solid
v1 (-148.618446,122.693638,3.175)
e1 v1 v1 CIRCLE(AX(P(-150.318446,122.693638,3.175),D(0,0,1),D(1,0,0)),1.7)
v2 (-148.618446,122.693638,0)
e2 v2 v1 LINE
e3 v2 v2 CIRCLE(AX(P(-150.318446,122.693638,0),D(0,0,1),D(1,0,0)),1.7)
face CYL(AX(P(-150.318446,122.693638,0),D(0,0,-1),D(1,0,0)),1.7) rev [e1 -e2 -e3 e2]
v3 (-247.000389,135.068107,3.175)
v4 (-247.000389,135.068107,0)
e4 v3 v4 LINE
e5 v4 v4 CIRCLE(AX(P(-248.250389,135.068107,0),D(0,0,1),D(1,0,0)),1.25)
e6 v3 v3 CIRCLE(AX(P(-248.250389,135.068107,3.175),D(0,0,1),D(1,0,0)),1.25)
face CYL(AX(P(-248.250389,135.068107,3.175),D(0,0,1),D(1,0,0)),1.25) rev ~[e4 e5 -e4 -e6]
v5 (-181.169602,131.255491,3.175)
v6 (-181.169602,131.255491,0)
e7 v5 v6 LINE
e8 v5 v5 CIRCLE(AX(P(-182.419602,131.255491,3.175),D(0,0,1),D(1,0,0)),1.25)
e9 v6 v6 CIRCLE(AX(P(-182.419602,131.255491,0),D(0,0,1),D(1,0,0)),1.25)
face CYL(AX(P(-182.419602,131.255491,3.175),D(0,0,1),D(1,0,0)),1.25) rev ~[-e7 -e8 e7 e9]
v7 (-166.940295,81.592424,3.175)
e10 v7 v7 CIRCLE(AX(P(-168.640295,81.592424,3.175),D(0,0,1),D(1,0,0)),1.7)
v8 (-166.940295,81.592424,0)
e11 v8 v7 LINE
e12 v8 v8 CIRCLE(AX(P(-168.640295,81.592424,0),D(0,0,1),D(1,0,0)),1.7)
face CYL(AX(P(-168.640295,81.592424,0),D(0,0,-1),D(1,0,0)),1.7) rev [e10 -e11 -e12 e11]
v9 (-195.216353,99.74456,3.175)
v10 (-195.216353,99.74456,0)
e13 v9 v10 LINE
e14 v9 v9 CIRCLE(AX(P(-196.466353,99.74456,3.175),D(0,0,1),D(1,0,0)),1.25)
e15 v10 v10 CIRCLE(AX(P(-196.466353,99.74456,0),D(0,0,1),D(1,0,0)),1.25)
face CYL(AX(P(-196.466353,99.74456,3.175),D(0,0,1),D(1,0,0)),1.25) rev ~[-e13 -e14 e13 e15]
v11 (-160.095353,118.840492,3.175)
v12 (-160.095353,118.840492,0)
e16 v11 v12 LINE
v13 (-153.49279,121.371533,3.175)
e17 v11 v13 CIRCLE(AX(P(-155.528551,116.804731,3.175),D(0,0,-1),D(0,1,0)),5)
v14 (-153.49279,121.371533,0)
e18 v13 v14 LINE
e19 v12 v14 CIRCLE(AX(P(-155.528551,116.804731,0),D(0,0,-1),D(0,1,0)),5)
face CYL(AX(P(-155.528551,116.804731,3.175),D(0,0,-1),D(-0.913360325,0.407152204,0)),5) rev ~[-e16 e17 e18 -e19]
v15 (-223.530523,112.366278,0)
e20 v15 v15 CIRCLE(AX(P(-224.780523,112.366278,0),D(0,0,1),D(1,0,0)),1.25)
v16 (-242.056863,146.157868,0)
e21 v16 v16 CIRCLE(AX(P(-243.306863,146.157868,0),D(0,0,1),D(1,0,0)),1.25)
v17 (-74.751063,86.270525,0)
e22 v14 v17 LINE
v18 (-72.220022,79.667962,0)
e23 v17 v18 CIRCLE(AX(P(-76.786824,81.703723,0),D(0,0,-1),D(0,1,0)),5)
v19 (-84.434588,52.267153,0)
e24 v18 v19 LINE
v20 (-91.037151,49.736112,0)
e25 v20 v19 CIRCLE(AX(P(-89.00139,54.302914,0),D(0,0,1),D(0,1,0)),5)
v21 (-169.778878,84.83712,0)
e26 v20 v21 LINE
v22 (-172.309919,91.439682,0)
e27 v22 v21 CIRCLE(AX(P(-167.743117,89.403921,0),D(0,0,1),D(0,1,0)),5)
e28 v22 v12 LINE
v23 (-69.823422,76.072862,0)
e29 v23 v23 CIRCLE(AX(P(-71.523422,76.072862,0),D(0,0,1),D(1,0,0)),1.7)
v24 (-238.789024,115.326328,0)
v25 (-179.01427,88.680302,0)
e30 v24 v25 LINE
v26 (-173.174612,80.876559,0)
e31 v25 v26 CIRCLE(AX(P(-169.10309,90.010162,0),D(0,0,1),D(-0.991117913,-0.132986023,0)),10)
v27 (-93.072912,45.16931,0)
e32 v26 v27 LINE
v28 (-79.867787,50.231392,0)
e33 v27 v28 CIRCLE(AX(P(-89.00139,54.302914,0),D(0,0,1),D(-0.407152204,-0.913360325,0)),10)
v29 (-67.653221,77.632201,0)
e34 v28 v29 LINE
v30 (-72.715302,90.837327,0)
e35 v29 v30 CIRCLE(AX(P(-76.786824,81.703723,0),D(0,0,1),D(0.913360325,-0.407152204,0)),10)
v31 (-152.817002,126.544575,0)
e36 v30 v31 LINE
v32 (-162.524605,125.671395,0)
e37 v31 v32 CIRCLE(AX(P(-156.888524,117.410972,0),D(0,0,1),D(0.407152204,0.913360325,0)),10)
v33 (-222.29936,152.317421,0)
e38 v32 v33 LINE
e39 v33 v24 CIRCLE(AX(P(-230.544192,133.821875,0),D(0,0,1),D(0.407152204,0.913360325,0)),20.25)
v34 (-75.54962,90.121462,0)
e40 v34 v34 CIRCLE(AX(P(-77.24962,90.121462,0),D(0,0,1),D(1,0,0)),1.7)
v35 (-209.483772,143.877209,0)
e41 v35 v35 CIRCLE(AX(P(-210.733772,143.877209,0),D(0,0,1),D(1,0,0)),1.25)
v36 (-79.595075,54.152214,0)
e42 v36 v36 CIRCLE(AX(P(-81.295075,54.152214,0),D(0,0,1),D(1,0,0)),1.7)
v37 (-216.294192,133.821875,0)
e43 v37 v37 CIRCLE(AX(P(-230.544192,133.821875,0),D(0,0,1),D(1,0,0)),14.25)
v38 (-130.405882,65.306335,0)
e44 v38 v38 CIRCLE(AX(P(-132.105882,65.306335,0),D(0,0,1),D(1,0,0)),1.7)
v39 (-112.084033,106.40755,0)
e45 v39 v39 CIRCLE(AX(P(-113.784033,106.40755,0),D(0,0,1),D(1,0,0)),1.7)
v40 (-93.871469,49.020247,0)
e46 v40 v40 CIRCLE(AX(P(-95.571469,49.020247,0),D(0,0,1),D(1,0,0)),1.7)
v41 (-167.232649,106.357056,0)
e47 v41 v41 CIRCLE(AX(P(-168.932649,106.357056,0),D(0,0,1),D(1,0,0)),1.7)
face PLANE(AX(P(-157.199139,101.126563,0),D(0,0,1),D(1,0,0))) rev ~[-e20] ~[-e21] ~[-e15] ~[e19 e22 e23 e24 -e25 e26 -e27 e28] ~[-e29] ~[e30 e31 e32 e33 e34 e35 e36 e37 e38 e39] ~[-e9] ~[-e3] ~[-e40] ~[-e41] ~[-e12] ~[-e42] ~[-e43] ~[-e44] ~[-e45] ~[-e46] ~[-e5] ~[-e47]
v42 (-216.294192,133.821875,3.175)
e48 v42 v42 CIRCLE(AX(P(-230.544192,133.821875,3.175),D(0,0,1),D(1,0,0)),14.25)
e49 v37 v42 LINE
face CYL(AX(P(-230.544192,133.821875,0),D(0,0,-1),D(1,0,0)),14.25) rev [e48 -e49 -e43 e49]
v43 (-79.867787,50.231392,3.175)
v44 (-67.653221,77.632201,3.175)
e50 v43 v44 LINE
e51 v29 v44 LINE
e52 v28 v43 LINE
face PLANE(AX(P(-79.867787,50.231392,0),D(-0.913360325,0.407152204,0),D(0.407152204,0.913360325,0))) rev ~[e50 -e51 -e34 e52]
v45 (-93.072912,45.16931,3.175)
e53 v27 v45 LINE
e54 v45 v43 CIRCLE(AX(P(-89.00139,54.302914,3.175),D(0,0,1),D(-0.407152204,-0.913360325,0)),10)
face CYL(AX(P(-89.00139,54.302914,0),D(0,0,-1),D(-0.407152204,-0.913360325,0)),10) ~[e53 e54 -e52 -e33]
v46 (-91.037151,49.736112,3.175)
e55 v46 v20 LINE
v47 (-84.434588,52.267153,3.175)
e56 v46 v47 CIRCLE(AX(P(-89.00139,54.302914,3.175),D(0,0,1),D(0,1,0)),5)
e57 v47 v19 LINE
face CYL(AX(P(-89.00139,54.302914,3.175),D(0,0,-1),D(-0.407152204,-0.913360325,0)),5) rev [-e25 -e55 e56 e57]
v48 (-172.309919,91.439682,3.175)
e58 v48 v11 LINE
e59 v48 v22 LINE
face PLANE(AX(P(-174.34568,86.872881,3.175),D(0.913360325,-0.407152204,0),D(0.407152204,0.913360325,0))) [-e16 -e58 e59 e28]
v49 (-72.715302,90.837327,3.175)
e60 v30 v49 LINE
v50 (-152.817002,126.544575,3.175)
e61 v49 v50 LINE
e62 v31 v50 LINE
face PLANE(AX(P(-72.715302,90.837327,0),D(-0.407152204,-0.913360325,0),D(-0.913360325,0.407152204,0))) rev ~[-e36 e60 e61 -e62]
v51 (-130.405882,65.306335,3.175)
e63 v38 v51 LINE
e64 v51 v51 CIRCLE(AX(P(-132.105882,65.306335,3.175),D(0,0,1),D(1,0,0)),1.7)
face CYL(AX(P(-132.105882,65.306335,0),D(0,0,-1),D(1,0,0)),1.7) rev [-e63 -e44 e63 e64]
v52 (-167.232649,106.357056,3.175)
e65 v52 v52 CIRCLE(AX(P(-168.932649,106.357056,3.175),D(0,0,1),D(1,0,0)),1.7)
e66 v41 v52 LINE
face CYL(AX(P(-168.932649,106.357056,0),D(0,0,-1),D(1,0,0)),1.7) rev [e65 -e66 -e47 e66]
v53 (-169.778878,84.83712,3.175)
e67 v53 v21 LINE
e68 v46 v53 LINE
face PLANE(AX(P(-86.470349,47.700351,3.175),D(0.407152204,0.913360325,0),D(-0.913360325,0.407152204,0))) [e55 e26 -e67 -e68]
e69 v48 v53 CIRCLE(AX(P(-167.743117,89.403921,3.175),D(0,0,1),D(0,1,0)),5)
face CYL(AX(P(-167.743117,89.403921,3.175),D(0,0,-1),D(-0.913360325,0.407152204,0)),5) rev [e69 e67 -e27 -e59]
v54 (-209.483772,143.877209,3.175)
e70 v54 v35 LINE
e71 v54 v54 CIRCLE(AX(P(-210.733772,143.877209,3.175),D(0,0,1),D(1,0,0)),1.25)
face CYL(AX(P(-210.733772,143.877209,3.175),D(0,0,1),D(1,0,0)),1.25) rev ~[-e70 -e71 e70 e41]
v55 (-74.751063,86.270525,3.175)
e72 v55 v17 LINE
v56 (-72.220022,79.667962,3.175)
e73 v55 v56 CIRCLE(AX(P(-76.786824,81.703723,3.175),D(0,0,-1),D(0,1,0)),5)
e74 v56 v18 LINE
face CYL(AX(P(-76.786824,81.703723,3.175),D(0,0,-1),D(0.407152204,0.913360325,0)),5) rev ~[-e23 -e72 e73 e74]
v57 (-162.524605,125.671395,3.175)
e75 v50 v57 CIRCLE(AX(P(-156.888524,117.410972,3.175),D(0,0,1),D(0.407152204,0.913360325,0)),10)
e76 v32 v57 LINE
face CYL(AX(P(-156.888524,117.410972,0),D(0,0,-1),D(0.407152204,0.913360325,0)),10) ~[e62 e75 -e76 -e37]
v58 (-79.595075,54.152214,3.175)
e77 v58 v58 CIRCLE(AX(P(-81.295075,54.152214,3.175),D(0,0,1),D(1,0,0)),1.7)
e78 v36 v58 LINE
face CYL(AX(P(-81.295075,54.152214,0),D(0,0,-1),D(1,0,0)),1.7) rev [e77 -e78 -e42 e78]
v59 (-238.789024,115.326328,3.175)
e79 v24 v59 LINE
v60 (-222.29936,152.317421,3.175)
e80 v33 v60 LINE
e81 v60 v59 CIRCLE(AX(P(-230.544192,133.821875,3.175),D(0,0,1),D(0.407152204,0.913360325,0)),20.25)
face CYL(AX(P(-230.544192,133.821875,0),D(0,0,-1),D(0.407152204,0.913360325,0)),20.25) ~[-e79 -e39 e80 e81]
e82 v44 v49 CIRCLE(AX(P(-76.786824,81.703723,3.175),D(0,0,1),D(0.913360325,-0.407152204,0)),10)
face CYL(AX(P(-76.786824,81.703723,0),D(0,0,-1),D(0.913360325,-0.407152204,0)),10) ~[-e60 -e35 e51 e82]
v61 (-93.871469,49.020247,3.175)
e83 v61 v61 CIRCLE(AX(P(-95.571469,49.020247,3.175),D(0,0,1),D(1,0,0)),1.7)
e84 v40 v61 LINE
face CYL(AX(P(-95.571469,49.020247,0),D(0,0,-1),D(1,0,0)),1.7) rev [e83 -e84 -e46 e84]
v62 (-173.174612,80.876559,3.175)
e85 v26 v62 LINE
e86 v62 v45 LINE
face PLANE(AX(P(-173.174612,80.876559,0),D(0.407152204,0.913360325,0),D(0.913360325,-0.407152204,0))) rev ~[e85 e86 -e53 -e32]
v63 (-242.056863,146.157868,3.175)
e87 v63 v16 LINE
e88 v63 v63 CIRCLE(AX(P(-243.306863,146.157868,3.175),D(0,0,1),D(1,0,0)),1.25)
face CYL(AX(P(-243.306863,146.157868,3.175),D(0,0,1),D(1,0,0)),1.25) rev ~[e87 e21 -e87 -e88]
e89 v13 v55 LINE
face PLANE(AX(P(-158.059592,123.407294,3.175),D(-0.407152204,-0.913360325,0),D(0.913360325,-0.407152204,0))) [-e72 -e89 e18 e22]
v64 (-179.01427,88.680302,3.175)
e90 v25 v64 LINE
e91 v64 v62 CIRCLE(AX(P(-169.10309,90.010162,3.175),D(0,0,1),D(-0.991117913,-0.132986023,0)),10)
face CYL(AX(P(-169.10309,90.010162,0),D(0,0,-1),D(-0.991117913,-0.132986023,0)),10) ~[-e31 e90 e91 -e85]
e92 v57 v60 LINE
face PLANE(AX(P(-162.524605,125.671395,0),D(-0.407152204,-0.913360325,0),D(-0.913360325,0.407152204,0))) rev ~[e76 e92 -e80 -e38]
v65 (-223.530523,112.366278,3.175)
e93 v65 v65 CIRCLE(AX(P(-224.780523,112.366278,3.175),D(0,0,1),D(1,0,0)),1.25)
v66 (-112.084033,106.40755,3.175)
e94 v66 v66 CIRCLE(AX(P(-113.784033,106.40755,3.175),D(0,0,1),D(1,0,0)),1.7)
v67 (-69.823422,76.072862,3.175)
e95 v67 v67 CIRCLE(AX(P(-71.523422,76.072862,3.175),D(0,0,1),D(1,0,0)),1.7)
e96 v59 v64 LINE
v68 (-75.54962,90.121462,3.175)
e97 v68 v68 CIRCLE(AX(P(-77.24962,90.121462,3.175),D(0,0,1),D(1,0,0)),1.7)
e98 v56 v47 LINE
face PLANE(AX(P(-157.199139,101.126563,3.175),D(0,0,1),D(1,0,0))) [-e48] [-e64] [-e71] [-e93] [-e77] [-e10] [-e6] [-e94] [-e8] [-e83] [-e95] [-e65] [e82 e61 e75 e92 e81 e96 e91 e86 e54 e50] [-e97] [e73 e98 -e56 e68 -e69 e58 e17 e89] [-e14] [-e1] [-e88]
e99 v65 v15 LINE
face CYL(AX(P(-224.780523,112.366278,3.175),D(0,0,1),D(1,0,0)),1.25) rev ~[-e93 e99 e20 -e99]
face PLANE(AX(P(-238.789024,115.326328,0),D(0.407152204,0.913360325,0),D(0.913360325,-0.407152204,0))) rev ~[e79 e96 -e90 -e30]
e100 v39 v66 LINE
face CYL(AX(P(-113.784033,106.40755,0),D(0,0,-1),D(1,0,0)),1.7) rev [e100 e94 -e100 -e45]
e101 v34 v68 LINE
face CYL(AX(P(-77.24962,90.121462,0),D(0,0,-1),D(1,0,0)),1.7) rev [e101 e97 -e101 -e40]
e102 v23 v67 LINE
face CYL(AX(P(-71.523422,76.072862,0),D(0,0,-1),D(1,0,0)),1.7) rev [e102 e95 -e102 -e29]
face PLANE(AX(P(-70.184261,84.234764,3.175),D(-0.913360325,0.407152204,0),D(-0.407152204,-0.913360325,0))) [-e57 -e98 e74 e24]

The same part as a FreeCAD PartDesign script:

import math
import FreeCAD as App
import Part
import Sketcher

V = App.Vector


def edges_at(feature, points):
    """Names of the edges that pass closest to the given points."""
    edges = feature.Shape.Edges
    near = lambda p: min(range(len(edges)), key=lambda i: edges[i].distToShape(Part.Vertex(*p))[0])
    return sorted({f"Edge{near(p) + 1}" for p in points})


def add_polygon(sketch, points):
    """Adds a closed chain of lines whose ends are joined by coincident constraints."""
    first, n = sketch.GeometryCount, len(points)
    for a, b in zip(points, points[1:] + points[:1]):
        sketch.addGeometry(Part.LineSegment(App.Vector(*a, 0), App.Vector(*b, 0)), False)
    for i in range(n):
        sketch.addConstraint(Sketcher.Constraint("Coincident", first + i, 2, first + (i + 1) % n, 1))

doc = App.newDocument("Part")
body = doc.addObject("PartDesign::Body", "Body")

sketch1 = body.newObject("Sketcher::SketchObject", "Sketch")
sketch1.AttachmentSupport = (doc.getObject("XY_Plane"), [""])
sketch1.MapMode = "FlatFace"
sketch1.addGeometry(Part.LineSegment(V(-72.7, 90.8, 0), V(-152.8, 126.5, 0)), False)
sketch1.addGeometry(Part.ArcOfCircle(Part.Circle(V(-156.9, 117.4, 0), V(0, 0, 1), 10), math.radians(66), math.radians(124)), False)
sketch1.addGeometry(Part.LineSegment(V(-162.5, 125.7, 0), V(-222.3, 152.3, 0)), False)
sketch1.addGeometry(Part.ArcOfCircle(Part.Circle(V(-230.5, 133.8, 0), V(0, 0, 1), 20.2), math.radians(66), math.radians(246)), False)
sketch1.addGeometry(Part.LineSegment(V(-238.8, 115.3, 0), V(-179, 88.7, 0)), False)
sketch1.addGeometry(Part.ArcOfCircle(Part.Circle(V(-169.1, 90, 0), V(0, 0, 1), 10), math.radians(-172), math.radians(-114)), False)
sketch1.addGeometry(Part.LineSegment(V(-173.2, 80.9, 0), V(-93.1, 45.2, 0)), False)
sketch1.addGeometry(Part.ArcOfCircle(Part.Circle(V(-89, 54.3, 0), V(0, 0, 1), 10), math.radians(-114), math.radians(-24)), False)
sketch1.addGeometry(Part.LineSegment(V(-79.9, 50.2, 0), V(-67.7, 77.6, 0)), False)
sketch1.addGeometry(Part.ArcOfCircle(Part.Circle(V(-76.8, 81.7, 0), V(0, 0, 1), 10), math.radians(-24), math.radians(66)), False)
sketch1.addGeometry(Part.Circle(V(-168.6, 81.6, 0), V(0, 0, 1), 1.7), False)
sketch1.addGeometry(Part.Circle(V(-132.1, 65.3, 0), V(0, 0, 1), 1.7), False)
sketch1.addGeometry(Part.Circle(V(-95.6, 49, 0), V(0, 0, 1), 1.7), False)
sketch1.addGeometry(Part.Circle(V(-81.3, 54.2, 0), V(0, 0, 1), 1.7), False)
sketch1.addGeometry(Part.Circle(V(-71.5, 76.1, 0), V(0, 0, 1), 1.7), False)
sketch1.addGeometry(Part.Circle(V(-77.2, 90.1, 0), V(0, 0, 1), 1.7), False)
sketch1.addGeometry(Part.Circle(V(-168.9, 106.4, 0), V(0, 0, 1), 1.7), False)
sketch1.addGeometry(Part.Circle(V(-230.5, 133.8, 0), V(0, 0, 1), 14.2), False)
sketch1.addGeometry(Part.Circle(V(-113.8, 106.4, 0), V(0, 0, 1), 1.7), False)
sketch1.addGeometry(Part.Circle(V(-150.3, 122.7, 0), V(0, 0, 1), 1.7), False)
sketch1.addConstraint(Sketcher.Constraint("Tangent", 0, 2, 1, 1))
sketch1.addConstraint(Sketcher.Constraint("Coincident", 1, 2, 2, 1))
sketch1.addConstraint(Sketcher.Constraint("Tangent", 2, 2, 3, 1))
sketch1.addConstraint(Sketcher.Constraint("Tangent", 3, 2, 4, 1))
sketch1.addConstraint(Sketcher.Constraint("Coincident", 4, 2, 5, 1))
sketch1.addConstraint(Sketcher.Constraint("Tangent", 5, 2, 6, 1))
sketch1.addConstraint(Sketcher.Constraint("Tangent", 6, 2, 7, 1))
sketch1.addConstraint(Sketcher.Constraint("Tangent", 7, 2, 8, 1))
sketch1.addConstraint(Sketcher.Constraint("Tangent", 8, 2, 9, 1))
sketch1.addConstraint(Sketcher.Constraint("Tangent", 9, 2, 0, 1))
sketch1.addConstraint(Sketcher.Constraint("Coincident", 17, 3, 3, 3))
sketch1.addConstraint(Sketcher.Constraint("Equal", 1, 5))
sketch1.addConstraint(Sketcher.Constraint("Equal", 5, 7))
sketch1.addConstraint(Sketcher.Constraint("Equal", 7, 9))
sketch1.addConstraint(Sketcher.Constraint("Equal", 10, 11))
sketch1.addConstraint(Sketcher.Constraint("Equal", 11, 12))
sketch1.addConstraint(Sketcher.Constraint("Equal", 12, 13))
sketch1.addConstraint(Sketcher.Constraint("Equal", 13, 14))
sketch1.addConstraint(Sketcher.Constraint("Equal", 14, 15))
sketch1.addConstraint(Sketcher.Constraint("Equal", 15, 16))
sketch1.addConstraint(Sketcher.Constraint("Equal", 16, 18))
sketch1.addConstraint(Sketcher.Constraint("Equal", 18, 19))
sketch1.addConstraint(Sketcher.Constraint("Parallel", 0, 2))
sketch1.addConstraint(Sketcher.Constraint("Parallel", 2, 4))
sketch1.addConstraint(Sketcher.Constraint("Parallel", 4, 6))
sketch1.addConstraint(Sketcher.Constraint("Perpendicular", 6, 8))
sketch1.addConstraint(Sketcher.Constraint("Equal", 2, 4))
sketch1.addConstraint(Sketcher.Constraint("Equal", 0, 6))
sketch1.addConstraint(Sketcher.Constraint("Radius", 1, 10.0))
sketch1.addConstraint(Sketcher.Constraint("Diameter", 10, 3.4))
sketch1.addConstraint(Sketcher.Constraint("Diameter", 17, 28.5))
sketch1.addConstraint(Sketcher.Constraint("Radius", 3, 20.25))
sketch1.addConstraint(Sketcher.Constraint("Distance", 8, 30.0))
sketch1.addConstraint(Sketcher.Constraint("Distance", 0, 87.7))
sketch1.addConstraint(Sketcher.Constraint("DistanceY", -1, 1, 4, 2, 88.680302))
sketch1.addConstraint(Sketcher.Constraint("DistanceY", -1, 1, 8, 2, 77.632201))
sketch1.addConstraint(Sketcher.Constraint("DistanceX", 9, 2, -1, 1, 72.715302))
sketch1.addConstraint(Sketcher.Constraint("DistanceX", 3, 3, 5, 3, 61.441102))
sketch1.addConstraint(Sketcher.Constraint("DistanceY", 10, 3, 9, 3, 0.1113))
sketch1.addConstraint(Sketcher.Constraint("DistanceY", 13, 3, 7, 3, 0.1507))
sketch1.addConstraint(Sketcher.Constraint("DistanceX", 9, 3, 14, 3, 5.263402))
sketch1.addConstraint(Sketcher.Constraint("DistanceY", 14, 3, 15, 3, 14.0486))
sketch1.addConstraint(Sketcher.Constraint("DistanceX", 15, 3, 8, 2, 9.596399))
sketch1.addConstraint(Sketcher.Constraint("DistanceX", 11, 3, -1, 1, 132.105882))
sketch1.addConstraint(Sketcher.Constraint("DistanceX", 12, 3, -1, 1, 95.571469))
sketch1.addConstraint(Sketcher.Constraint("DistanceY", -1, 1, 14, 3, 76.072862))
sketch1.addConstraint(Sketcher.Constraint("DistanceX", 16, 3, -1, 1, 168.932649))
sketch1.addConstraint(Sketcher.Constraint("DistanceY", -1, 1, 18, 3, 106.40755))
sketch1.addConstraint(Sketcher.Constraint("DistanceY", -1, 1, 19, 3, 122.693638))
sketch1.addConstraint(Sketcher.Constraint("DistanceX", 10, 3, 1, 3, 11.75177))
sketch1.addConstraint(Sketcher.Constraint("DistanceY", 11, 3, 10, 3, 16.286088))
sketch1.addConstraint(Sketcher.Constraint("DistanceY", 12, 3, 11, 3, 16.286088))
sketch1.addConstraint(Sketcher.Constraint("DistanceX", 13, 3, 9, 3, 4.508251))
sketch1.addConstraint(Sketcher.Constraint("DistanceY", 11, 3, 16, 3, 41.050721))
sketch1.addConstraint(Sketcher.Constraint("DistanceX", 18, 3, 9, 3, 36.997209))
sketch1.addConstraint(Sketcher.Constraint("DistanceX", 1, 3, 19, 3, 6.570079))
pad1 = body.newObject("PartDesign::Pad", "Pad")
pad1.Profile = sketch1
pad1.Length = 3.175

sketch2 = body.newObject("Sketcher::SketchObject", "Sketch001")
sketch2.AttachmentSupport = (doc.getObject("XY_Plane"), [""])
sketch2.MapMode = "FlatFace"
sketch2.AttachmentOffset = App.Placement(V(0, 0, 3.175), App.Rotation())
sketch2.addGeometry(Part.Circle(V(-196.5, 99.7, 0), V(0, 0, 1), 1.2), False)
sketch2.addGeometry(Part.Circle(V(-224.8, 112.4, 0), V(0, 0, 1), 1.2), False)
sketch2.addGeometry(Part.Circle(V(-210.7, 143.9, 0), V(0, 0, 1), 1.2), False)
sketch2.addGeometry(Part.Circle(V(-182.4, 131.3, 0), V(0, 0, 1), 1.2), False)
sketch2.addGeometry(Part.Circle(V(-243.3, 146.2, 0), V(0, 0, 1), 1.2), False)
sketch2.addGeometry(Part.Circle(V(-248.3, 135.1, 0), V(0, 0, 1), 1.2), False)
sketch2.addConstraint(Sketcher.Constraint("Equal", 0, 1))
sketch2.addConstraint(Sketcher.Constraint("Equal", 1, 2))
sketch2.addConstraint(Sketcher.Constraint("Equal", 2, 3))
sketch2.addConstraint(Sketcher.Constraint("Equal", 3, 4))
sketch2.addConstraint(Sketcher.Constraint("Equal", 4, 5))
sketch2.addConstraint(Sketcher.Constraint("Diameter", 0, 2.5))
sketch2.addConstraint(Sketcher.Constraint("DistanceY", -1, 1, 0, 3, 99.74456))
sketch2.addConstraint(Sketcher.Constraint("DistanceY", -1, 1, 1, 3, 112.366278))
sketch2.addConstraint(Sketcher.Constraint("DistanceY", -1, 1, 2, 3, 143.877209))
sketch2.addConstraint(Sketcher.Constraint("DistanceY", -1, 1, 3, 3, 131.255491))
sketch2.addConstraint(Sketcher.Constraint("DistanceY", -1, 1, 4, 3, 146.157868))
sketch2.addConstraint(Sketcher.Constraint("DistanceX", 5, 3, -1, 1, 248.250389))
sketch2.addConstraint(Sketcher.Constraint("DistanceX", 1, 3, 0, 3, 28.31417))
sketch2.addConstraint(Sketcher.Constraint("DistanceX", 1, 3, 2, 3, 14.046751))
sketch2.addConstraint(Sketcher.Constraint("DistanceX", 2, 3, 3, 3, 28.31417))
sketch2.addConstraint(Sketcher.Constraint("DistanceX", 4, 3, 2, 3, 32.573091))
sketch2.addConstraint(Sketcher.Constraint("DistanceY", 5, 3, 4, 3, 11.089761))
sketch2.addConstraint(Sketcher.Constraint("DistanceX", 0, 3, -1, 1, 196.466353))
pocket1 = body.newObject("PartDesign::Pocket", "Pocket")
pocket1.Profile = sketch2
pocket1.Type = "ThroughAll"

sketch3 = body.newObject("Sketcher::SketchObject", "Sketch002")
sketch3.AttachmentSupport = (doc.getObject("XY_Plane"), [""])
sketch3.MapMode = "FlatFace"
sketch3.AttachmentOffset = App.Placement(V(0, 0, 3.175), App.Rotation())
add_polygon(sketch3, [(-70, 84), (-158, 123), (-174, 87), (-86, 48)])
sketch3.addConstraint(Sketcher.Constraint("Perpendicular", 0, 1))
sketch3.addConstraint(Sketcher.Constraint("Perpendicular", 1, 2))
sketch3.addConstraint(Sketcher.Constraint("Perpendicular", 2, 3))
sketch3.addConstraint(Sketcher.Constraint("Distance", 1, 40.0))
sketch3.addConstraint(Sketcher.Constraint("DistanceX", 0, 2, -1, 1, 158.059592))
sketch3.addConstraint(Sketcher.Constraint("DistanceX", 1, 2, -1, 1, 174.34568))
sketch3.addConstraint(Sketcher.Constraint("DistanceY", -1, 1, 1, 2, 86.872881))
sketch3.addConstraint(Sketcher.Constraint("DistanceX", 2, 2, -1, 1, 86.470349))
pocket2 = body.newObject("PartDesign::Pocket", "Pocket001")
pocket2.Profile = sketch3
pocket2.Length = 10
doc.recompute()

fillet = body.newObject("PartDesign::Fillet", "Fillet")
fillet.Base = (pocket2, edges_at(pocket2, [(-174.346, 86.873, 1.587), (-158.06, 123.407, 1.587)]))
fillet.Radius = 5
doc.recompute()

fillet2 = body.newObject("PartDesign::Fillet", "Fillet001")
fillet2.Base = (fillet, edges_at(fillet, [(-70.184, 84.235, 1.587), (-86.47, 47.7, 1.587)]))
fillet2.Radius = 5

doc.recompute()
